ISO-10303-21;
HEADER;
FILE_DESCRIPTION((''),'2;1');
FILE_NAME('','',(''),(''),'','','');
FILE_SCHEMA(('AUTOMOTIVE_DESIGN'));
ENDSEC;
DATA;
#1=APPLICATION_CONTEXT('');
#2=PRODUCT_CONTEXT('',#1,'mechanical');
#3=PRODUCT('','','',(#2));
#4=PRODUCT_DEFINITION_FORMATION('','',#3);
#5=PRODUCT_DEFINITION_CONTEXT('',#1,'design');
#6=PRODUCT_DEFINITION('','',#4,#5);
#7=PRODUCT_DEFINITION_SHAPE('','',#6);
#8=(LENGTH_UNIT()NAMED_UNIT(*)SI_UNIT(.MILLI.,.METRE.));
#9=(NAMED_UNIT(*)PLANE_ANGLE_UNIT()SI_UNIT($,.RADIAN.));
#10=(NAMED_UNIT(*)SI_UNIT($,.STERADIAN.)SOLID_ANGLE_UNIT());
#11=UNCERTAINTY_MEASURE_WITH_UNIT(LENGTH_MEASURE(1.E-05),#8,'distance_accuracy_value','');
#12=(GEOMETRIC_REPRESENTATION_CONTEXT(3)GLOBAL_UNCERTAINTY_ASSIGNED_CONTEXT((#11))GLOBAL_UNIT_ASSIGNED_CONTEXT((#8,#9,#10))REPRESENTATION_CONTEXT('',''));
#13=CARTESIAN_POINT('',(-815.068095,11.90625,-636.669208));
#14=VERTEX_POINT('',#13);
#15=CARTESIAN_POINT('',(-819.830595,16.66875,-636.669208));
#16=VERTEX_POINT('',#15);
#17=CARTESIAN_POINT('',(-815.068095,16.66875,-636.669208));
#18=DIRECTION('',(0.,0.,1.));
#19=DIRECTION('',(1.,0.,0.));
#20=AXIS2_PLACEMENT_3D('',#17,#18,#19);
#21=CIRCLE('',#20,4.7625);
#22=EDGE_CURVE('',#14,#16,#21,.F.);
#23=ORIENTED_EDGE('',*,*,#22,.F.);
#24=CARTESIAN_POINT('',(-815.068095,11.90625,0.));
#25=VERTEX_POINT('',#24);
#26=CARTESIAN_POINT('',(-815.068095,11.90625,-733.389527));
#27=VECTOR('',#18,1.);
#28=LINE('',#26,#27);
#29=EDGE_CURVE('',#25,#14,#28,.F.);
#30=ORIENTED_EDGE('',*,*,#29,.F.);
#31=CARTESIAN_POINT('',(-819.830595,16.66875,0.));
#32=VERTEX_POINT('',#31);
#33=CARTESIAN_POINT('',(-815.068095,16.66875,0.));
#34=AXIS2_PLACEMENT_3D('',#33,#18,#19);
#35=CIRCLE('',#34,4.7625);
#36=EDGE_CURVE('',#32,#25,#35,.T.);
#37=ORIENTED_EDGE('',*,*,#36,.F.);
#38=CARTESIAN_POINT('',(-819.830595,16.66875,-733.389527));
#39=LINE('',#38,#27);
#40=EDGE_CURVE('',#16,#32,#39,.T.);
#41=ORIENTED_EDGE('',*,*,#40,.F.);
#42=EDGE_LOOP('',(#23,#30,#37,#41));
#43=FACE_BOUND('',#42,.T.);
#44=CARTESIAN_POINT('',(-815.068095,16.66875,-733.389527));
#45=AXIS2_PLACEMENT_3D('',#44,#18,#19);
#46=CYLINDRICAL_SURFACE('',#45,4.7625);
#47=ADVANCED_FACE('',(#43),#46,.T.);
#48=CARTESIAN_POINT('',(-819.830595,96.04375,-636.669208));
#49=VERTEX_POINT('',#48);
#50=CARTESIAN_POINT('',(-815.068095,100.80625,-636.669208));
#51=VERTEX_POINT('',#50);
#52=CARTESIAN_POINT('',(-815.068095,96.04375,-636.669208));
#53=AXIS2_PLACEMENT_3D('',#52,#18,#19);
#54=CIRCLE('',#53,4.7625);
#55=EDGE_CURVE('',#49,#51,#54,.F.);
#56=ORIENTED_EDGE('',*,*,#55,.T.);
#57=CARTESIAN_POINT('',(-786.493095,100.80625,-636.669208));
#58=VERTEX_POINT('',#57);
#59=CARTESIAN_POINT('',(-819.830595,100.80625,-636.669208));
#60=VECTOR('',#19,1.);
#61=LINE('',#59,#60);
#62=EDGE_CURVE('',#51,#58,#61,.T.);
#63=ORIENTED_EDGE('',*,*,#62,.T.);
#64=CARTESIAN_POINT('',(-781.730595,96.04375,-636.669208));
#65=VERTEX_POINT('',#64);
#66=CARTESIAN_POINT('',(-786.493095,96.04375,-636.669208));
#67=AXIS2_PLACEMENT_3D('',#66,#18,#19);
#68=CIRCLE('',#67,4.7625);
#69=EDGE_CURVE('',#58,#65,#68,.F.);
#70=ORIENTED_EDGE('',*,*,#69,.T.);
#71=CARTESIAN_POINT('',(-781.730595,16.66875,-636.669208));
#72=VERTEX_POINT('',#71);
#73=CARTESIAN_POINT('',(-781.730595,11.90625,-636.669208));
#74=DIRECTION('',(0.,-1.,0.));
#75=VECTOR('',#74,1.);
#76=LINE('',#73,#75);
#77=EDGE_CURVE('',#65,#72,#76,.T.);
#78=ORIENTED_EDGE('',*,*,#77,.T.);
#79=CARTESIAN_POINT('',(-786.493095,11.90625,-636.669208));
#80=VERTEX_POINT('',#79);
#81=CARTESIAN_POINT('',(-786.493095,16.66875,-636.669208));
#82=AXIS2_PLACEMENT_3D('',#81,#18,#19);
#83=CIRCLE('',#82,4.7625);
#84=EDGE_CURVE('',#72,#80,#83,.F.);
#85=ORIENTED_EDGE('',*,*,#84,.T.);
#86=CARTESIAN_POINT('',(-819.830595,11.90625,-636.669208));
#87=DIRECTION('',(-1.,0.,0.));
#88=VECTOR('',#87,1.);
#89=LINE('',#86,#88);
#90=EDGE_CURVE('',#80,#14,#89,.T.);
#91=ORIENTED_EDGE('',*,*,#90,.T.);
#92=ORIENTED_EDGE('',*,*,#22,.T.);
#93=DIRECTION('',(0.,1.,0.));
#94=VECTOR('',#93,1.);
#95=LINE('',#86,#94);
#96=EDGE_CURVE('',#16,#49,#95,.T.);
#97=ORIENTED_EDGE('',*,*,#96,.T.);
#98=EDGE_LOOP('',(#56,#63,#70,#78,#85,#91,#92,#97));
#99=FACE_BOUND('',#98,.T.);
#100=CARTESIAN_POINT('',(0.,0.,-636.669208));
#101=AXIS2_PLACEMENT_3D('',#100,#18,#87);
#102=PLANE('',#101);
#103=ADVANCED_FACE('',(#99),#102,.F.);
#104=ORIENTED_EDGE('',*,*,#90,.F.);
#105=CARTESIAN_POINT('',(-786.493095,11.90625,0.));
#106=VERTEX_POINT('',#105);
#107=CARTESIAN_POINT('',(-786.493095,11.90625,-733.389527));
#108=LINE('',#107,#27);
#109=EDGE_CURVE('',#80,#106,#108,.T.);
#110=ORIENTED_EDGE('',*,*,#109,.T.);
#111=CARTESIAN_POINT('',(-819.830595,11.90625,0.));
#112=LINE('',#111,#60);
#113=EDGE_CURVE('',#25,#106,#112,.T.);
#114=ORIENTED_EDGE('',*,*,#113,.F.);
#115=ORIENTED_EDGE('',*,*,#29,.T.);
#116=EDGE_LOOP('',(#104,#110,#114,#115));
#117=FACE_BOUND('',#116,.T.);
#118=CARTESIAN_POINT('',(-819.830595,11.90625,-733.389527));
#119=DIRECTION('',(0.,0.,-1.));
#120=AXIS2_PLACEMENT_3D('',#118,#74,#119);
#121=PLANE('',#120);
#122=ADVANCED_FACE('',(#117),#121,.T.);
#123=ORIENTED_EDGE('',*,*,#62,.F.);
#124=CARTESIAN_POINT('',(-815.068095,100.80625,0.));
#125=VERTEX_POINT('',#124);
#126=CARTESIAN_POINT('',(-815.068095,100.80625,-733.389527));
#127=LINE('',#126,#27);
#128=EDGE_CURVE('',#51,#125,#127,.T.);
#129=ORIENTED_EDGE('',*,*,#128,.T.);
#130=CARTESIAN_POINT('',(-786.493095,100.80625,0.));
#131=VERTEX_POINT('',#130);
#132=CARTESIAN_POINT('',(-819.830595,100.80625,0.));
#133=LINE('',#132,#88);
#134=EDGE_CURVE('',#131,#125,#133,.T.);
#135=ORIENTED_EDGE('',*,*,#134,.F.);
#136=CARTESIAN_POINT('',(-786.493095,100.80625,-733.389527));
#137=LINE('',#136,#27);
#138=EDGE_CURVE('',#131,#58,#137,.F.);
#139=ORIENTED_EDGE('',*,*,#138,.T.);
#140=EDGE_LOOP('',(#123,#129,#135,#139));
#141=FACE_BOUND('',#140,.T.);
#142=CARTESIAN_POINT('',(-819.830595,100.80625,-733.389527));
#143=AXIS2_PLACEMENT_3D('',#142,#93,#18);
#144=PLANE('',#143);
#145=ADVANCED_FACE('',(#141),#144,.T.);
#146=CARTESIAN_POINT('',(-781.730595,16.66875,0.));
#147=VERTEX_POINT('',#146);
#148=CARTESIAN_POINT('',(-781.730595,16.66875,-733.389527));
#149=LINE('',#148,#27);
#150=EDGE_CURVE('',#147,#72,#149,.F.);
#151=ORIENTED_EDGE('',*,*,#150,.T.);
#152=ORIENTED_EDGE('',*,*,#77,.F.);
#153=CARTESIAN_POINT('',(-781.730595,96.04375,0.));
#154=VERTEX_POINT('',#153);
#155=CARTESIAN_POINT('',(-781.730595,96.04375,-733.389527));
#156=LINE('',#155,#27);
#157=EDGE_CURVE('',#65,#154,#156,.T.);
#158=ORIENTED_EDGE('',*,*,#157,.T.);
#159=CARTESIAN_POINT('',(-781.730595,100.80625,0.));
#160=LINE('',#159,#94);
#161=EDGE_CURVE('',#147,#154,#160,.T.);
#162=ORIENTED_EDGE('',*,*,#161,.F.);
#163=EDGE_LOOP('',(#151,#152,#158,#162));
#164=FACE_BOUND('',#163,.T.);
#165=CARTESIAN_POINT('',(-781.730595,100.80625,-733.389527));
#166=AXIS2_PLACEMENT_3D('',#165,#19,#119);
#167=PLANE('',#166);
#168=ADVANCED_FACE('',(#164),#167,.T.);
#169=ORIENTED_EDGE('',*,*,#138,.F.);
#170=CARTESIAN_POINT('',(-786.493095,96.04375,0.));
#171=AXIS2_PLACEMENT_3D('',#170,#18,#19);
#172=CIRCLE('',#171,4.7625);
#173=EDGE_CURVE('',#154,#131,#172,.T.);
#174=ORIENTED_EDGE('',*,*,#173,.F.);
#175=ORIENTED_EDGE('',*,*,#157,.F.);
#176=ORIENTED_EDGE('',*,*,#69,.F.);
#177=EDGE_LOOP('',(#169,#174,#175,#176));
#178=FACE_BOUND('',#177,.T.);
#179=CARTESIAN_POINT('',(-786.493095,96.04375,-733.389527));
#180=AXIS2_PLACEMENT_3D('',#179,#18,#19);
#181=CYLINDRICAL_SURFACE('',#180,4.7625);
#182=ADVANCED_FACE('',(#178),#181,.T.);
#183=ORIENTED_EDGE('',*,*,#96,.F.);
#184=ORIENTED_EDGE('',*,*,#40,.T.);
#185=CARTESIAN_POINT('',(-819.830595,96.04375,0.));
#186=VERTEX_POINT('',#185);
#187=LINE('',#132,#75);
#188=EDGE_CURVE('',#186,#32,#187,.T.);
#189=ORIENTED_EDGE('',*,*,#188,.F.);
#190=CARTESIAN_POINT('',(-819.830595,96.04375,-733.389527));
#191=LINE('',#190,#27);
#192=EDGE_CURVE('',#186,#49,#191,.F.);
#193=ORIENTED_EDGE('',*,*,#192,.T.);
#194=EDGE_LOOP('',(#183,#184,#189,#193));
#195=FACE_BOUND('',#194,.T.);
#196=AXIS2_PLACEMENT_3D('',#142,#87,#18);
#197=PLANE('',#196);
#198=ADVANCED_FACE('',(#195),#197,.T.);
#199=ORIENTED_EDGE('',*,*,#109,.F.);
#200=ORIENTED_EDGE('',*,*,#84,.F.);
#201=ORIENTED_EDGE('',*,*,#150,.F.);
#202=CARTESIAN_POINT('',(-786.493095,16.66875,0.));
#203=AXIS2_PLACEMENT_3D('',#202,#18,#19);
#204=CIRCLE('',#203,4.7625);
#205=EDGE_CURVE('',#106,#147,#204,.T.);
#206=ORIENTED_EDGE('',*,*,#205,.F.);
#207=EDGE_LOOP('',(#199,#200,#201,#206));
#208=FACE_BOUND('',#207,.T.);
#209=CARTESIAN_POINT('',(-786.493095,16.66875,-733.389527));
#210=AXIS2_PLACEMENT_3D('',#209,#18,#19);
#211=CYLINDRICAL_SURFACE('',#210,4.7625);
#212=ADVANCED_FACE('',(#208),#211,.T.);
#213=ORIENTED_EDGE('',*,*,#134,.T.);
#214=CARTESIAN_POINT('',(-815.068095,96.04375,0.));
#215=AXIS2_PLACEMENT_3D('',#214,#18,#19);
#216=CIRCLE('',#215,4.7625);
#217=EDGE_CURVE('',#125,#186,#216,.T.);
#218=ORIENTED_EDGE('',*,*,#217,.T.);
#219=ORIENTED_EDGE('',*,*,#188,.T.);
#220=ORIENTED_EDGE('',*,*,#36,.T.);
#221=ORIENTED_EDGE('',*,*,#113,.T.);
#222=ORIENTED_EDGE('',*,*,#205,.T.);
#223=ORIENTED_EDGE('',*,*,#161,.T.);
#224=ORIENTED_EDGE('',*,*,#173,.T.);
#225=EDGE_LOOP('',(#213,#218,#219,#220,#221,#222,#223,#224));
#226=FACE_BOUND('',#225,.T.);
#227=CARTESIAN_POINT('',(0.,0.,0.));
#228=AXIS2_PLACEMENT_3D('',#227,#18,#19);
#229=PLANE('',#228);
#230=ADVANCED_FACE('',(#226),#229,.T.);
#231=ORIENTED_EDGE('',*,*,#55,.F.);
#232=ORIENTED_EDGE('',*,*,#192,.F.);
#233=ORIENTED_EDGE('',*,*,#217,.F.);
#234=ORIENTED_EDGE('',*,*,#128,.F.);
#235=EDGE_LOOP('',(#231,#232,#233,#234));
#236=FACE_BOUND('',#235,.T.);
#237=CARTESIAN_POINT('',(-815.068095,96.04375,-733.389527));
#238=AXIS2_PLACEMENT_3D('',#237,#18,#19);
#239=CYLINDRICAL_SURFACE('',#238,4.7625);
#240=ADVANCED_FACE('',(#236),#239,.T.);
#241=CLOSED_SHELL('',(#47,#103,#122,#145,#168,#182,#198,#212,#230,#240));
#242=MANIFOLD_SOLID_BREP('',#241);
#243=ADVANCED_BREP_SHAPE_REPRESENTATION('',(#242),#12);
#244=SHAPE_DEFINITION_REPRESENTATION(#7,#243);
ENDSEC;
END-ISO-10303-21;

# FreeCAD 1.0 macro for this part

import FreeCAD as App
import Part
import Sketcher
from FreeCAD import Vector
Q = App.Units.Quantity


def edges_at(feature, points):
    """Names of the edges that pass closest to the given points."""
    edges = feature.Shape.Edges
    near = lambda p: min(range(len(edges)), key=lambda i: edges[i].distToShape(Part.Vertex(*p))[0])
    return sorted({f"Edge{near(p) + 1}" for p in points})


def add_polygon(sketch, points):
    """Adds a closed chain of lines whose ends are joined by coincident constraints."""
    first, n = sketch.GeometryCount, len(points)
    for a, b in zip(points, points[1:] + points[:1]):
        sketch.addGeometry(Part.LineSegment(App.Vector(*a, 0), App.Vector(*b, 0)), False)
    for i in range(n):
        sketch.addConstraint(Sketcher.Constraint("Coincident", first + i, 2, first + (i + 1) % n, 1))

doc = App.newDocument("Part")
params = doc.addObject("Spreadsheet::Sheet", "Params")
for row, (alias, value) in enumerate([
    ("sketch1_width", "1.5 in"),
    ("sketch1_height", "3.5 in"),
    ("pad1_length", "636.669208 mm"),
    ("fillet_radius", "0.1875 in"),
], start=1):
    params.set(f"A{row}", alias)
    params.set(f"B{row}", "=" + value)
    params.setAlias(f"B{row}", alias)

body = doc.addObject("PartDesign::Body", "Body")

# Sketch on XY plane
sketch1 = body.newObject("Sketcher::SketchObject", "Sketch")
sketch1.AttachmentSupport = (doc.getObject("XY_Plane"), [""])
sketch1.MapMode = "FlatFace"
add_polygon(sketch1, [(-820, 101), (-820, 12), (-782, 12), (-782, 101)])  # lines 0-3
sketch1.addConstraint(Sketcher.Constraint("Vertical", 0))
sketch1.addConstraint(Sketcher.Constraint("Horizontal", 1))
sketch1.addConstraint(Sketcher.Constraint("Vertical", 2))
sketch1.addConstraint(Sketcher.Constraint("Horizontal", 3))
sketch1.addConstraint(Sketcher.Constraint("DistanceX", 1, 1, 1, 2, Q("1.5 in")))
sketch1.addConstraint(Sketcher.Constraint("DistanceY", 0, 2, 0, 1, Q("3.5 in")))
sketch1.addConstraint(Sketcher.Constraint("DistanceY", -1, 1, 0, 2, Q("0.46875 in")))
sketch1.addConstraint(Sketcher.Constraint("DistanceX", 0, 2, -1, 1, Q("819.830595 mm")))
sketch1.setExpression("Constraints[8]", "Params.sketch1_width")
sketch1.setExpression("Constraints[9]", "Params.sketch1_height")
pad1 = body.newObject("PartDesign::Pad", "Pad")
pad1.Profile = sketch1
pad1.setExpression("Length", "Params.pad1_length")
pad1.Reversed = True
doc.recompute()

fillet = body.newObject("PartDesign::Fillet", "Fillet")
fillet.Base = (pad1, edges_at(pad1, [
    (-819.831, 11.906, -318.335),
    (-819.831, 100.806, -318.335),
    (-781.731, 100.806, -318.335),
    (-781.731, 11.906, -318.335),
]))
fillet.setExpression("Radius", "Params.fillet_radius")

doc.recompute()
